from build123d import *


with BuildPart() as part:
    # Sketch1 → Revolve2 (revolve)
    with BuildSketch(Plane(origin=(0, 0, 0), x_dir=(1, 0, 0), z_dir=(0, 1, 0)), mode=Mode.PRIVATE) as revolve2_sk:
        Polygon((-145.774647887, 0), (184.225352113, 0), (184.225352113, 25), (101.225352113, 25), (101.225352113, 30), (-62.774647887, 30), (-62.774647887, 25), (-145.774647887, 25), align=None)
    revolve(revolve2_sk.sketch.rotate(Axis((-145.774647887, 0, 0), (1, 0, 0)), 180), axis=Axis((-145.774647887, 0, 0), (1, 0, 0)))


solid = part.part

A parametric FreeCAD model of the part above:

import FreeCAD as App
import Part
import Sketcher
from FreeCAD import Vector


def add_polygon(sketch, points):
    """Adds a closed chain of lines whose ends are joined by coincident constraints."""
    first, n = sketch.GeometryCount, len(points)
    for a, b in zip(points, points[1:] + points[:1]):
        sketch.addGeometry(Part.LineSegment(App.Vector(*a, 0), App.Vector(*b, 0)), False)
    for i in range(n):
        sketch.addConstraint(Sketcher.Constraint("Coincident", first + i, 2, first + (i + 1) % n, 1))

doc = App.newDocument("Part")
body = doc.addObject("PartDesign::Body", "Body")

sketch1 = body.newObject("Sketcher::SketchObject", "Sketch")
sketch1.AttachmentSupport = (doc.getObject("XZ_Plane"), [""])
sketch1.MapMode = "FlatFace"
add_polygon(sketch1, [(-146, 0), (184, 0), (184, -25), (101, -25), (101, -30), (-63, -30), (-63, -25), (-146, -25)])
sketch1.addConstraint([
    Sketcher.Constraint("Horizontal", 0),
    Sketcher.Constraint("Vertical", 1),
    Sketcher.Constraint("Horizontal", 2),
    Sketcher.Constraint("Vertical", 3),
    Sketcher.Constraint("Horizontal", 4),
    Sketcher.Constraint("Vertical", 5),
    Sketcher.Constraint("Horizontal", 6),
    Sketcher.Constraint("Vertical", 7),
    Sketcher.Constraint("PointOnObject", 0, 2, -1),
    Sketcher.Constraint("Horizontal", 2, 2, 5, 2),
    Sketcher.Constraint("Equal", 2, 6),
    Sketcher.Constraint("DistanceX", 0, 1, 0, 2, 330.0),
    Sketcher.Constraint("DistanceX", 2, 2, 2, 1, 83.0),
    Sketcher.Constraint("DistanceY", 1, 2, 1, 1, 25.0),
    Sketcher.Constraint("DistanceY", 3, 2, 3, 1, 5.0),
    Sketcher.Constraint("DistanceX", -1, 1, 0, 2, 184.225352),
])
revolution = body.newObject("PartDesign::Revolution", "Revolution")
revolution.Profile = sketch1
revolution.ReferenceAxis = (sketch1, ["H_Axis"])
revolution.Angle = 360

doc.recompute()
